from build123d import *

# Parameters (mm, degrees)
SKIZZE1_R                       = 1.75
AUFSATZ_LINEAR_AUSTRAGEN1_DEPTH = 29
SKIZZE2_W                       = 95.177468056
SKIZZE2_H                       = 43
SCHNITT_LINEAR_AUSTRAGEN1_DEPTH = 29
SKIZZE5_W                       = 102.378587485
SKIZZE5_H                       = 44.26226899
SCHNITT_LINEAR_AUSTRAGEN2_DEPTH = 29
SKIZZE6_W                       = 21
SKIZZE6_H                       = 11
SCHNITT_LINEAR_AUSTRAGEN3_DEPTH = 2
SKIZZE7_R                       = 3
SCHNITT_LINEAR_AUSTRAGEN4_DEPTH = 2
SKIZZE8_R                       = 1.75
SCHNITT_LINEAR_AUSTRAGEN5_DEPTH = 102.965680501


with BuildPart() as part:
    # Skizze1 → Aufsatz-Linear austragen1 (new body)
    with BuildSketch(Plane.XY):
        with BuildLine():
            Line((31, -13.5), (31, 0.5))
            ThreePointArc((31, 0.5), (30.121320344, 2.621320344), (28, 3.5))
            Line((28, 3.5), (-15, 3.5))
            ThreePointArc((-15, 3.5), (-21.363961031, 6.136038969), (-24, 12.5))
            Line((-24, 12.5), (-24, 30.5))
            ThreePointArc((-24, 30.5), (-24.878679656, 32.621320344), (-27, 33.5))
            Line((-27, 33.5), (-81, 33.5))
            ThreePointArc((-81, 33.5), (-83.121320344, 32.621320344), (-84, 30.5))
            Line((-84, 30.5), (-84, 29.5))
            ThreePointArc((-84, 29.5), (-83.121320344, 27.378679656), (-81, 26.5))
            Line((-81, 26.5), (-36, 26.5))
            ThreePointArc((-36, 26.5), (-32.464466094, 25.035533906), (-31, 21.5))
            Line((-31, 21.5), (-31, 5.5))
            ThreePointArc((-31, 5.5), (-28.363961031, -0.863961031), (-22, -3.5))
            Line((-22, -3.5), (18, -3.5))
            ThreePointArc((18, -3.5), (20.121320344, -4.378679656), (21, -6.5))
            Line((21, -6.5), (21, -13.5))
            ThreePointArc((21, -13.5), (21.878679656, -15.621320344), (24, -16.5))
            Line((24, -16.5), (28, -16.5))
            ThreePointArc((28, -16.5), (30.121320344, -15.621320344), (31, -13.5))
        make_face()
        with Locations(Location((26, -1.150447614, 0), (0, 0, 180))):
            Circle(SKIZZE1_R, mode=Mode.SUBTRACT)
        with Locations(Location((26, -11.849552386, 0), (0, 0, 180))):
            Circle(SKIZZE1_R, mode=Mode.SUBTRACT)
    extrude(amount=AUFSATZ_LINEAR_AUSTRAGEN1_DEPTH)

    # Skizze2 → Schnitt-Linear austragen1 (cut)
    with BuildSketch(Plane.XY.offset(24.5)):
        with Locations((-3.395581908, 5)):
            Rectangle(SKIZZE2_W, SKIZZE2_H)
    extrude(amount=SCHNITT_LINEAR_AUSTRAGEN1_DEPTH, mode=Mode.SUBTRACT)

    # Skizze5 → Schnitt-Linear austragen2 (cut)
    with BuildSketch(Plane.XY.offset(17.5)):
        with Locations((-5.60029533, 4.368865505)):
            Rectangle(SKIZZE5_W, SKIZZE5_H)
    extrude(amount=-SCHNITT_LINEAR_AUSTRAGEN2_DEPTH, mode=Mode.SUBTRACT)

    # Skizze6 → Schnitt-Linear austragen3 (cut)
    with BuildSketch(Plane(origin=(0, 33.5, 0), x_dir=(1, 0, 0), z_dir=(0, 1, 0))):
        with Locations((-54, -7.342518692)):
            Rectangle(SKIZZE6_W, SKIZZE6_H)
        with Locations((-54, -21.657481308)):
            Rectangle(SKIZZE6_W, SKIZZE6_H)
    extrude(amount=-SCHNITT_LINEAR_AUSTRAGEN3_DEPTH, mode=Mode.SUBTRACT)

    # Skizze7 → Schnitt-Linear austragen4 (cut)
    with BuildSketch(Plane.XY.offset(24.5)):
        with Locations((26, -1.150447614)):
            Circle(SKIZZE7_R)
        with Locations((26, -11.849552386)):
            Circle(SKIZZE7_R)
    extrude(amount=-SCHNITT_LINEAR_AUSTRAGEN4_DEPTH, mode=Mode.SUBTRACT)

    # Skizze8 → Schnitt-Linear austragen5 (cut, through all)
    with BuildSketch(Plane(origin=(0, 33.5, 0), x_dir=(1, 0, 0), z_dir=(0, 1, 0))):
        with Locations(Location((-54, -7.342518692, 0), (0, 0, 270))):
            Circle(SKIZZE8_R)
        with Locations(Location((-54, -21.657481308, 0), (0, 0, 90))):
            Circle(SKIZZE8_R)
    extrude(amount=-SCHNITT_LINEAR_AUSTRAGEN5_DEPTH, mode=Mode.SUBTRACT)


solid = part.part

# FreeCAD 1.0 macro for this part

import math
import FreeCAD as App
import Part
import Sketcher

doc = App.newDocument("Part")
params = doc.addObject("Spreadsheet::Sheet", "Params")
for row, (alias, value) in enumerate([
    ("sketch1_radius", "3 mm"),
    ("sketch1_radius2", "9 mm"),
    ("sketch1_radius3", "5 mm"),
    ("sketch1_diameter", "3.5 mm"),
    ("sketch1_width", "43 mm"),
    ("pad1_length", "29 mm"),
    ("sketch2_height", "43 mm"),
    ("pocket1_length", "29 mm"),
    ("pocket2_length", "29 mm"),
    ("sketch4_width", "21 mm"),
    ("sketch4_height", "11 mm"),
    ("pocket3_length", "2 mm"),
    ("sketch5_diameter", "6 mm"),
    ("pocket4_length", "2 mm"),
    ("sketch6_diameter", "3.5 mm"),
], start=1):
    params.set(f"A{row}", alias)
    params.set(f"B{row}", "=" + value)
    params.setAlias(f"B{row}", alias)

body = doc.addObject("PartDesign::Body", "Body")

sketch1 = body.newObject("Sketcher::SketchObject", "Sketch")
sketch1.AttachmentSupport = (doc.getObject("XY_Plane"), [""])
sketch1.MapMode = "FlatFace"
sketch1.addGeometry(Part.LineSegment(App.Vector(31, -13.5, 0), App.Vector(31, 0.5, 0)), False)
sketch1.addGeometry(Part.ArcOfCircle(Part.Circle(App.Vector(28, 0.5, 0), App.Vector(0, 0, 1), 3), math.radians(0), math.radians(90)), False)
sketch1.addGeometry(Part.LineSegment(App.Vector(28, 3.5, 0), App.Vector(-15, 3.5, 0)), False)
sketch1.addGeometry(Part.ArcOfCircle(Part.Circle(App.Vector(-15, 12.5, 0), App.Vector(0, 0, 1), 9), math.radians(180), math.radians(270)), False)
sketch1.addGeometry(Part.LineSegment(App.Vector(-24, 12.5, 0), App.Vector(-24, 30.5, 0)), False)
sketch1.addGeometry(Part.ArcOfCircle(Part.Circle(App.Vector(-27, 30.5, 0), App.Vector(0, 0, 1), 3), math.radians(0), math.radians(90)), False)
sketch1.addGeometry(Part.LineSegment(App.Vector(-27, 33.5, 0), App.Vector(-81, 33.5, 0)), False)
sketch1.addGeometry(Part.ArcOfCircle(Part.Circle(App.Vector(-81, 30.5, 0), App.Vector(0, 0, 1), 3), math.radians(90), math.radians(180)), False)
sketch1.addGeometry(Part.LineSegment(App.Vector(-84, 30.5, 0), App.Vector(-84, 29.5, 0)), False)
sketch1.addGeometry(Part.ArcOfCircle(Part.Circle(App.Vector(-81, 29.5, 0), App.Vector(0, 0, 1), 3), math.radians(180), math.radians(270)), False)
sketch1.addGeometry(Part.LineSegment(App.Vector(-81, 26.5, 0), App.Vector(-36, 26.5, 0)), False)
sketch1.addGeometry(Part.ArcOfCircle(Part.Circle(App.Vector(-36, 21.5, 0), App.Vector(0, 0, 1), 5), math.radians(0), math.radians(90)), False)
sketch1.addGeometry(Part.LineSegment(App.Vector(-31, 21.5, 0), App.Vector(-31, 5.5, 0)), False)
sketch1.addGeometry(Part.ArcOfCircle(Part.Circle(App.Vector(-22, 5.5, 0), App.Vector(0, 0, 1), 9), math.radians(180), math.radians(270)), False)
sketch1.addGeometry(Part.LineSegment(App.Vector(-22, -3.5, 0), App.Vector(18, -3.5, 0)), False)
sketch1.addGeometry(Part.ArcOfCircle(Part.Circle(App.Vector(18, -6.5, 0), App.Vector(0, 0, 1), 3), math.radians(0), math.radians(90)), False)
sketch1.addGeometry(Part.LineSegment(App.Vector(21, -6.5, 0), App.Vector(21, -13.5, 0)), False)
sketch1.addGeometry(Part.ArcOfCircle(Part.Circle(App.Vector(24, -13.5, 0), App.Vector(0, 0, 1), 3), math.radians(180), math.radians(270)), False)
sketch1.addGeometry(Part.LineSegment(App.Vector(24, -16.5, 0), App.Vector(28, -16.5, 0)), False)
sketch1.addGeometry(Part.ArcOfCircle(Part.Circle(App.Vector(28, -13.5, 0), App.Vector(0, 0, 1), 3), math.radians(-90), math.radians(0)), False)
sketch1.addGeometry(Part.Circle(App.Vector(26, -11.8, 0), App.Vector(0, 0, 1), 1.8), False)
sketch1.addGeometry(Part.Circle(App.Vector(26, -1.2, 0), App.Vector(0, 0, 1), 1.8), False)
sketch1.addConstraint(Sketcher.Constraint("Tangent", 0, 2, 1, 1))
sketch1.addConstraint(Sketcher.Constraint("Tangent", 1, 2, 2, 1))
sketch1.addConstraint(Sketcher.Constraint("Tangent", 2, 2, 3, 2))
sketch1.addConstraint(Sketcher.Constraint("Tangent", 3, 1, 4, 1))
sketch1.addConstraint(Sketcher.Constraint("Tangent", 4, 2, 5, 1))
sketch1.addConstraint(Sketcher.Constraint("Tangent", 5, 2, 6, 1))
sketch1.addConstraint(Sketcher.Constraint("Tangent", 6, 2, 7, 1))
sketch1.addConstraint(Sketcher.Constraint("Tangent", 7, 2, 8, 1))
sketch1.addConstraint(Sketcher.Constraint("Tangent", 8, 2, 9, 1))
sketch1.addConstraint(Sketcher.Constraint("Tangent", 9, 2, 10, 1))
sketch1.addConstraint(Sketcher.Constraint("Tangent", 10, 2, 11, 2))
sketch1.addConstraint(Sketcher.Constraint("Tangent", 11, 1, 12, 1))
sketch1.addConstraint(Sketcher.Constraint("Tangent", 12, 2, 13, 1))
sketch1.addConstraint(Sketcher.Constraint("Tangent", 13, 2, 14, 1))
sketch1.addConstraint(Sketcher.Constraint("Tangent", 14, 2, 15, 2))
sketch1.addConstraint(Sketcher.Constraint("Tangent", 15, 1, 16, 1))
sketch1.addConstraint(Sketcher.Constraint("Tangent", 16, 2, 17, 1))
sketch1.addConstraint(Sketcher.Constraint("Tangent", 17, 2, 18, 1))
sketch1.addConstraint(Sketcher.Constraint("Tangent", 18, 2, 19, 1))
sketch1.addConstraint(Sketcher.Constraint("Tangent", 19, 2, 0, 1))
sketch1.addConstraint(Sketcher.Constraint("Vertical", 0))
sketch1.addConstraint(Sketcher.Constraint("Horizontal", 2))
sketch1.addConstraint(Sketcher.Constraint("Vertical", 4))
sketch1.addConstraint(Sketcher.Constraint("Horizontal", 6))
sketch1.addConstraint(Sketcher.Constraint("Vertical", 8))
sketch1.addConstraint(Sketcher.Constraint("Horizontal", 10))
sketch1.addConstraint(Sketcher.Constraint("Vertical", 12))
sketch1.addConstraint(Sketcher.Constraint("Horizontal", 14))
sketch1.addConstraint(Sketcher.Constraint("Vertical", 16))
sketch1.addConstraint(Sketcher.Constraint("Horizontal", 18))
sketch1.addConstraint(Sketcher.Constraint("Equal", 1, 5))
sketch1.addConstraint(Sketcher.Constraint("Equal", 5, 7))
sketch1.addConstraint(Sketcher.Constraint("Equal", 7, 9))
sketch1.addConstraint(Sketcher.Constraint("Equal", 3, 13))
sketch1.addConstraint(Sketcher.Constraint("Equal", 9, 15))
sketch1.addConstraint(Sketcher.Constraint("Equal", 15, 17))
sketch1.addConstraint(Sketcher.Constraint("Equal", 17, 19))
sketch1.addConstraint(Sketcher.Constraint("Equal", 20, 21))
sketch1.addConstraint(Sketcher.Constraint("Vertical", 20, 3, 21, 3))
sketch1.addConstraint(Sketcher.Constraint("Radius", 1, 3.0))
sketch1.addConstraint(Sketcher.Constraint("Radius", 3, 9.0))
sketch1.addConstraint(Sketcher.Constraint("Radius", 11, 5.0))
sketch1.addConstraint(Sketcher.Constraint("Diameter", 20, 3.5))
sketch1.addConstraint(Sketcher.Constraint("DistanceX", 2, 2, 2, 1, 43.0))
sketch1.addConstraint(Sketcher.Constraint("DistanceX", 6, 2, 6, 1, 54.0))
sketch1.addConstraint(Sketcher.Constraint("DistanceX", 10, 1, 10, 2, 45.0))
sketch1.addConstraint(Sketcher.Constraint("DistanceX", 14, 1, 14, 2, 40.0))
sketch1.addConstraint(Sketcher.Constraint("DistanceY", 0, 1, 0, 2, 14.0))
sketch1.addConstraint(Sketcher.Constraint("DistanceY", 4, 1, 4, 2, 18.0))
sketch1.addConstraint(Sketcher.Constraint("DistanceY", 8, 2, 8, 1, 1.0))
sketch1.addConstraint(Sketcher.Constraint("DistanceY", 12, 2, 12, 1, 16.0))
sketch1.addConstraint(Sketcher.Constraint("DistanceX", -1, 1, 1, 3, 28.0))
sketch1.addConstraint(Sketcher.Constraint("DistanceX", -1, 1, 20, 3, 26.0))
sketch1.addConstraint(Sketcher.Constraint("DistanceY", -1, 1, 1, 3, 0.5))
sketch1.addConstraint(Sketcher.Constraint("DistanceY", 20, 3, -1, 1, 11.849552))
sketch1.addConstraint(Sketcher.Constraint("DistanceY", 21, 3, -1, 1, 1.150448))
sketch1.setExpression("Constraints[39]", "Params.sketch1_radius")
sketch1.setExpression("Constraints[40]", "Params.sketch1_radius2")
sketch1.setExpression("Constraints[41]", "Params.sketch1_radius3")
sketch1.setExpression("Constraints[42]", "Params.sketch1_diameter")
sketch1.setExpression("Constraints[43]", "Params.sketch1_width")
pad1 = body.newObject("PartDesign::Pad", "Pad")
pad1.Profile = sketch1
pad1.setExpression("Length", "Params.pad1_length")

sketch2 = body.newObject("Sketcher::SketchObject", "Sketch001")
sketch2.AttachmentSupport = (doc.getObject("XY_Plane"), [""])
sketch2.MapMode = "FlatFace"
sketch2.AttachmentOffset = App.Placement(App.Vector(0, 0, 24.5), App.Rotation())
sketch2.addGeometry(Part.LineSegment(App.Vector(-51, 26, 0), App.Vector(-51, -16, 0)), False)
sketch2.addGeometry(Part.LineSegment(App.Vector(-51, -16, 0), App.Vector(44, -16, 0)), False)
sketch2.addGeometry(Part.LineSegment(App.Vector(44, -16, 0), App.Vector(44, 26, 0)), False)
sketch2.addGeometry(Part.LineSegment(App.Vector(44, 26, 0), App.Vector(-51, 26, 0)), False)
sketch2.addConstraint(Sketcher.Constraint("Coincident", 0, 2, 1, 1))
sketch2.addConstraint(Sketcher.Constraint("Coincident", 1, 2, 2, 1))
sketch2.addConstraint(Sketcher.Constraint("Coincident", 2, 2, 3, 1))
sketch2.addConstraint(Sketcher.Constraint("Coincident", 3, 2, 0, 1))
sketch2.addConstraint(Sketcher.Constraint("Vertical", 0))
sketch2.addConstraint(Sketcher.Constraint("Horizontal", 1))
sketch2.addConstraint(Sketcher.Constraint("Vertical", 2))
sketch2.addConstraint(Sketcher.Constraint("Horizontal", 3))
sketch2.addConstraint(Sketcher.Constraint("DistanceY", 0, 2, 0, 1, 43.0))
sketch2.addConstraint(Sketcher.Constraint("DistanceY", 0, 2, -1, 1, 16.5))
sketch2.addConstraint(Sketcher.Constraint("DistanceX", 1, 1, 1, 2, 95.177468))
sketch2.addConstraint(Sketcher.Constraint("DistanceX", 0, 2, -1, 1, 50.984316))
sketch2.setExpression("Constraints[8]", "Params.sketch2_height")
pocket1 = body.newObject("PartDesign::Pocket", "Pocket")
pocket1.Profile = sketch2
pocket1.setExpression("Length", "Params.pocket1_length")
pocket1.Reversed = True

sketch3 = body.newObject("Sketcher::SketchObject", "Sketch002")
sketch3.AttachmentSupport = (doc.getObject("XY_Plane"), [""])
sketch3.MapMode = "FlatFace"
sketch3.AttachmentOffset = App.Placement(App.Vector(0, 0, 17.5), App.Rotation())
sketch3.addGeometry(Part.LineSegment(App.Vector(-57, 26, 0), App.Vector(-57, -18, 0)), False)
sketch3.addGeometry(Part.LineSegment(App.Vector(-57, -18, 0), App.Vector(46, -18, 0)), False)
sketch3.addGeometry(Part.LineSegment(App.Vector(46, -18, 0), App.Vector(46, 26, 0)), False)
sketch3.addGeometry(Part.LineSegment(App.Vector(46, 26, 0), App.Vector(-57, 26, 0)), False)
sketch3.addConstraint(Sketcher.Constraint("Coincident", 0, 2, 1, 1))
sketch3.addConstraint(Sketcher.Constraint("Coincident", 1, 2, 2, 1))
sketch3.addConstraint(Sketcher.Constraint("Coincident", 2, 2, 3, 1))
sketch3.addConstraint(Sketcher.Constraint("Coincident", 3, 2, 0, 1))
sketch3.addConstraint(Sketcher.Constraint("Vertical", 0))
sketch3.addConstraint(Sketcher.Constraint("Horizontal", 1))
sketch3.addConstraint(Sketcher.Constraint("Vertical", 2))
sketch3.addConstraint(Sketcher.Constraint("Horizontal", 3))
sketch3.addConstraint(Sketcher.Constraint("DistanceY", -1, 1, 2, 2, 26.5))
sketch3.addConstraint(Sketcher.Constraint("DistanceX", -1, 1, 1, 2, 45.588998))
sketch3.addConstraint(Sketcher.Constraint("DistanceY", 0, 2, 0, 1, 44.262269))
sketch3.addConstraint(Sketcher.Constraint("DistanceX", 1, 1, 1, 2, 102.378587))
pocket2 = body.newObject("PartDesign::Pocket", "Pocket001")
pocket2.Profile = sketch3
pocket2.setExpression("Length", "Params.pocket2_length")

sketch4 = body.newObject("Sketcher::SketchObject", "Sketch003")
sketch4.AttachmentSupport = (doc.getObject("XZ_Plane"), [""])
sketch4.MapMode = "FlatFace"
sketch4.AttachmentOffset = App.Placement(App.Vector(0, 0, -33.5), App.Rotation())
sketch4.addGeometry(Part.LineSegment(App.Vector(-64, 2, 0), App.Vector(-64, 13, 0)), False)
sketch4.addGeometry(Part.LineSegment(App.Vector(-64, 13, 0), App.Vector(-44, 13, 0)), False)
sketch4.addGeometry(Part.LineSegment(App.Vector(-44, 13, 0), App.Vector(-44, 2, 0)), False)
sketch4.addGeometry(Part.LineSegment(App.Vector(-44, 2, 0), App.Vector(-64, 2, 0)), False)
sketch4.addGeometry(Part.LineSegment(App.Vector(-64, 16, 0), App.Vector(-64, 27, 0)), False)
sketch4.addGeometry(Part.LineSegment(App.Vector(-64, 27, 0), App.Vector(-44, 27, 0)), False)
sketch4.addGeometry(Part.LineSegment(App.Vector(-44, 27, 0), App.Vector(-44, 16, 0)), False)
sketch4.addGeometry(Part.LineSegment(App.Vector(-44, 16, 0), App.Vector(-64, 16, 0)), False)
sketch4.addConstraint(Sketcher.Constraint("Coincident", 0, 2, 1, 1))
sketch4.addConstraint(Sketcher.Constraint("Coincident", 1, 2, 2, 1))
sketch4.addConstraint(Sketcher.Constraint("Coincident", 2, 2, 3, 1))
sketch4.addConstraint(Sketcher.Constraint("Coincident", 3, 2, 0, 1))
sketch4.addConstraint(Sketcher.Constraint("Coincident", 4, 2, 5, 1))
sketch4.addConstraint(Sketcher.Constraint("Coincident", 5, 2, 6, 1))
sketch4.addConstraint(Sketcher.Constraint("Coincident", 6, 2, 7, 1))
sketch4.addConstraint(Sketcher.Constraint("Coincident", 7, 2, 4, 1))
sketch4.addConstraint(Sketcher.Constraint("Vertical", 0))
sketch4.addConstraint(Sketcher.Constraint("Horizontal", 1))
sketch4.addConstraint(Sketcher.Constraint("Vertical", 2))
sketch4.addConstraint(Sketcher.Constraint("Horizontal", 3))
sketch4.addConstraint(Sketcher.Constraint("Vertical", 4))
sketch4.addConstraint(Sketcher.Constraint("Horizontal", 5))
sketch4.addConstraint(Sketcher.Constraint("Vertical", 6))
sketch4.addConstraint(Sketcher.Constraint("Horizontal", 7))
sketch4.addConstraint(Sketcher.Constraint("Vertical", 3, 2, 4, 2))
sketch4.addConstraint(Sketcher.Constraint("Vertical", 2, 2, 5, 2))
sketch4.addConstraint(Sketcher.Constraint("Equal", 2, 4))
sketch4.addConstraint(Sketcher.Constraint("DistanceX", 1, 1, 1, 2, 21.0))
sketch4.addConstraint(Sketcher.Constraint("DistanceY", 0, 1, 0, 2, 11.0))
sketch4.addConstraint(Sketcher.Constraint("DistanceX", 0, 2, -1, 1, 64.5))
sketch4.addConstraint(Sketcher.Constraint("DistanceY", -1, 1, 0, 2, 12.842519))
sketch4.addConstraint(Sketcher.Constraint("DistanceY", -1, 1, 4, 2, 27.157481))
sketch4.setExpression("Constraints[19]", "Params.sketch4_width")
sketch4.setExpression("Constraints[20]", "Params.sketch4_height")
pocket3 = body.newObject("PartDesign::Pocket", "Pocket002")
pocket3.Profile = sketch4
pocket3.setExpression("Length", "Params.pocket3_length")
pocket3.Reversed = True

sketch5 = body.newObject("Sketcher::SketchObject", "Sketch004")
sketch5.AttachmentSupport = (doc.getObject("XY_Plane"), [""])
sketch5.MapMode = "FlatFace"
sketch5.AttachmentOffset = App.Placement(App.Vector(0, 0, 24.5), App.Rotation())
sketch5.addGeometry(Part.Circle(App.Vector(26, -1.2, 0), App.Vector(0, 0, 1), 3), False)
sketch5.addGeometry(Part.Circle(App.Vector(26, -11.8, 0), App.Vector(0, 0, 1), 3), False)
sketch5.addConstraint(Sketcher.Constraint("Equal", 0, 1))
sketch5.addConstraint(Sketcher.Constraint("Vertical", 0, 3, 1, 3))
sketch5.addConstraint(Sketcher.Constraint("Diameter", 0, 6.0))
sketch5.addConstraint(Sketcher.Constraint("DistanceX", -1, 1, 0, 3, 26.0))
sketch5.addConstraint(Sketcher.Constraint("DistanceY", 0, 3, -1, 1, 1.150448))
sketch5.addConstraint(Sketcher.Constraint("DistanceY", 1, 3, -1, 1, 11.849552))
sketch5.setExpression("Constraints[2]", "Params.sketch5_diameter")
pocket4 = body.newObject("PartDesign::Pocket", "Pocket003")
pocket4.Profile = sketch5
pocket4.setExpression("Length", "Params.pocket4_length")

sketch6 = body.newObject("Sketcher::SketchObject", "Sketch005")
sketch6.AttachmentSupport = (doc.getObject("XZ_Plane"), [""])
sketch6.MapMode = "FlatFace"
sketch6.AttachmentOffset = App.Placement(App.Vector(0, 0, -33.5), App.Rotation())
sketch6.addGeometry(Part.Circle(App.Vector(-54, 7.3, 0), App.Vector(0, 0, 1), 1.8), False)
sketch6.addGeometry(Part.Circle(App.Vector(-54, 21.7, 0), App.Vector(0, 0, 1), 1.8), False)
sketch6.addConstraint(Sketcher.Constraint("Equal", 0, 1))
sketch6.addConstraint(Sketcher.Constraint("Vertical", 0, 3, 1, 3))
sketch6.addConstraint(Sketcher.Constraint("Diameter", 0, 3.5))
sketch6.addConstraint(Sketcher.Constraint("DistanceX", 0, 3, -1, 1, 54.0))
sketch6.addConstraint(Sketcher.Constraint("DistanceY", -1, 1, 0, 3, 7.342519))
sketch6.addConstraint(Sketcher.Constraint("DistanceY", -1, 1, 1, 3, 21.657481))
sketch6.setExpression("Constraints[2]", "Params.sketch6_diameter")
pocket5 = body.newObject("PartDesign::Pocket", "Pocket004")
pocket5.Profile = sketch6
pocket5.Type = "ThroughAll"
pocket5.Reversed = True

doc.recompute()
